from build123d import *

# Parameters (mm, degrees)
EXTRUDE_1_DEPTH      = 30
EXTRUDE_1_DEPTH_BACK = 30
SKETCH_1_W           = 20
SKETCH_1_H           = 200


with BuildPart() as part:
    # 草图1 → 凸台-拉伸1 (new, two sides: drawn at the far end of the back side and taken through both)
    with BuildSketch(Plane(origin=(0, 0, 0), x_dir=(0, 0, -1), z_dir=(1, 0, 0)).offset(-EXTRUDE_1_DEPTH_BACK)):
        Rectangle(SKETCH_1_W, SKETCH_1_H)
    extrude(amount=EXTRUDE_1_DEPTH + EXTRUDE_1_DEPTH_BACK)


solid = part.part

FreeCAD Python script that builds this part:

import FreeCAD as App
import Part
import Sketcher

doc = App.newDocument("Part")
body = doc.addObject("PartDesign::Body", "Body")

sketch1 = doc.addObject("Sketcher::SketchObject", "Sketch")
body.addObject(sketch1)
sketch1.AttachmentSupport = (doc.YZ_Plane, [""])
sketch1.MapMode = "FlatFace"
sketch1.addGeometry(Part.LineSegment(App.Vector(100, 10, 0), App.Vector(-100, 10, 0)), False)
sketch1.addGeometry(Part.LineSegment(App.Vector(-100, 10, 0), App.Vector(-100, -10, 0)), False)
sketch1.addGeometry(Part.LineSegment(App.Vector(-100, -10, 0), App.Vector(100, -10, 0)), False)
sketch1.addGeometry(Part.LineSegment(App.Vector(100, -10, 0), App.Vector(100, 10, 0)), False)
sketch1.addConstraint(Sketcher.Constraint("Coincident", 0, 2, 1, 1))
sketch1.addConstraint(Sketcher.Constraint("Coincident", 1, 2, 2, 1))
sketch1.addConstraint(Sketcher.Constraint("Coincident", 2, 2, 3, 1))
sketch1.addConstraint(Sketcher.Constraint("Coincident", 3, 2, 0, 1))
sketch1.addConstraint(Sketcher.Constraint("Horizontal", 0))
sketch1.addConstraint(Sketcher.Constraint("Vertical", 1))
sketch1.addConstraint(Sketcher.Constraint("Horizontal", 2))
sketch1.addConstraint(Sketcher.Constraint("Vertical", 3))
sketch1.addConstraint(Sketcher.Constraint("Symmetric", 0, 2, 2, 2, -1, 1))
sketch1.addConstraint(Sketcher.Constraint("DistanceX", 0, 2, 0, 1, 200.0))
sketch1.addConstraint(Sketcher.Constraint("DistanceY", 1, 2, 1, 1, 20.0))
pad1 = doc.addObject("PartDesign::Pad", "Pad")
body.addObject(pad1)
pad1.Profile = sketch1
pad1.Type = "TwoLengths"
pad1.Length = 30
pad1.Length2 = 30

doc.recompute()
